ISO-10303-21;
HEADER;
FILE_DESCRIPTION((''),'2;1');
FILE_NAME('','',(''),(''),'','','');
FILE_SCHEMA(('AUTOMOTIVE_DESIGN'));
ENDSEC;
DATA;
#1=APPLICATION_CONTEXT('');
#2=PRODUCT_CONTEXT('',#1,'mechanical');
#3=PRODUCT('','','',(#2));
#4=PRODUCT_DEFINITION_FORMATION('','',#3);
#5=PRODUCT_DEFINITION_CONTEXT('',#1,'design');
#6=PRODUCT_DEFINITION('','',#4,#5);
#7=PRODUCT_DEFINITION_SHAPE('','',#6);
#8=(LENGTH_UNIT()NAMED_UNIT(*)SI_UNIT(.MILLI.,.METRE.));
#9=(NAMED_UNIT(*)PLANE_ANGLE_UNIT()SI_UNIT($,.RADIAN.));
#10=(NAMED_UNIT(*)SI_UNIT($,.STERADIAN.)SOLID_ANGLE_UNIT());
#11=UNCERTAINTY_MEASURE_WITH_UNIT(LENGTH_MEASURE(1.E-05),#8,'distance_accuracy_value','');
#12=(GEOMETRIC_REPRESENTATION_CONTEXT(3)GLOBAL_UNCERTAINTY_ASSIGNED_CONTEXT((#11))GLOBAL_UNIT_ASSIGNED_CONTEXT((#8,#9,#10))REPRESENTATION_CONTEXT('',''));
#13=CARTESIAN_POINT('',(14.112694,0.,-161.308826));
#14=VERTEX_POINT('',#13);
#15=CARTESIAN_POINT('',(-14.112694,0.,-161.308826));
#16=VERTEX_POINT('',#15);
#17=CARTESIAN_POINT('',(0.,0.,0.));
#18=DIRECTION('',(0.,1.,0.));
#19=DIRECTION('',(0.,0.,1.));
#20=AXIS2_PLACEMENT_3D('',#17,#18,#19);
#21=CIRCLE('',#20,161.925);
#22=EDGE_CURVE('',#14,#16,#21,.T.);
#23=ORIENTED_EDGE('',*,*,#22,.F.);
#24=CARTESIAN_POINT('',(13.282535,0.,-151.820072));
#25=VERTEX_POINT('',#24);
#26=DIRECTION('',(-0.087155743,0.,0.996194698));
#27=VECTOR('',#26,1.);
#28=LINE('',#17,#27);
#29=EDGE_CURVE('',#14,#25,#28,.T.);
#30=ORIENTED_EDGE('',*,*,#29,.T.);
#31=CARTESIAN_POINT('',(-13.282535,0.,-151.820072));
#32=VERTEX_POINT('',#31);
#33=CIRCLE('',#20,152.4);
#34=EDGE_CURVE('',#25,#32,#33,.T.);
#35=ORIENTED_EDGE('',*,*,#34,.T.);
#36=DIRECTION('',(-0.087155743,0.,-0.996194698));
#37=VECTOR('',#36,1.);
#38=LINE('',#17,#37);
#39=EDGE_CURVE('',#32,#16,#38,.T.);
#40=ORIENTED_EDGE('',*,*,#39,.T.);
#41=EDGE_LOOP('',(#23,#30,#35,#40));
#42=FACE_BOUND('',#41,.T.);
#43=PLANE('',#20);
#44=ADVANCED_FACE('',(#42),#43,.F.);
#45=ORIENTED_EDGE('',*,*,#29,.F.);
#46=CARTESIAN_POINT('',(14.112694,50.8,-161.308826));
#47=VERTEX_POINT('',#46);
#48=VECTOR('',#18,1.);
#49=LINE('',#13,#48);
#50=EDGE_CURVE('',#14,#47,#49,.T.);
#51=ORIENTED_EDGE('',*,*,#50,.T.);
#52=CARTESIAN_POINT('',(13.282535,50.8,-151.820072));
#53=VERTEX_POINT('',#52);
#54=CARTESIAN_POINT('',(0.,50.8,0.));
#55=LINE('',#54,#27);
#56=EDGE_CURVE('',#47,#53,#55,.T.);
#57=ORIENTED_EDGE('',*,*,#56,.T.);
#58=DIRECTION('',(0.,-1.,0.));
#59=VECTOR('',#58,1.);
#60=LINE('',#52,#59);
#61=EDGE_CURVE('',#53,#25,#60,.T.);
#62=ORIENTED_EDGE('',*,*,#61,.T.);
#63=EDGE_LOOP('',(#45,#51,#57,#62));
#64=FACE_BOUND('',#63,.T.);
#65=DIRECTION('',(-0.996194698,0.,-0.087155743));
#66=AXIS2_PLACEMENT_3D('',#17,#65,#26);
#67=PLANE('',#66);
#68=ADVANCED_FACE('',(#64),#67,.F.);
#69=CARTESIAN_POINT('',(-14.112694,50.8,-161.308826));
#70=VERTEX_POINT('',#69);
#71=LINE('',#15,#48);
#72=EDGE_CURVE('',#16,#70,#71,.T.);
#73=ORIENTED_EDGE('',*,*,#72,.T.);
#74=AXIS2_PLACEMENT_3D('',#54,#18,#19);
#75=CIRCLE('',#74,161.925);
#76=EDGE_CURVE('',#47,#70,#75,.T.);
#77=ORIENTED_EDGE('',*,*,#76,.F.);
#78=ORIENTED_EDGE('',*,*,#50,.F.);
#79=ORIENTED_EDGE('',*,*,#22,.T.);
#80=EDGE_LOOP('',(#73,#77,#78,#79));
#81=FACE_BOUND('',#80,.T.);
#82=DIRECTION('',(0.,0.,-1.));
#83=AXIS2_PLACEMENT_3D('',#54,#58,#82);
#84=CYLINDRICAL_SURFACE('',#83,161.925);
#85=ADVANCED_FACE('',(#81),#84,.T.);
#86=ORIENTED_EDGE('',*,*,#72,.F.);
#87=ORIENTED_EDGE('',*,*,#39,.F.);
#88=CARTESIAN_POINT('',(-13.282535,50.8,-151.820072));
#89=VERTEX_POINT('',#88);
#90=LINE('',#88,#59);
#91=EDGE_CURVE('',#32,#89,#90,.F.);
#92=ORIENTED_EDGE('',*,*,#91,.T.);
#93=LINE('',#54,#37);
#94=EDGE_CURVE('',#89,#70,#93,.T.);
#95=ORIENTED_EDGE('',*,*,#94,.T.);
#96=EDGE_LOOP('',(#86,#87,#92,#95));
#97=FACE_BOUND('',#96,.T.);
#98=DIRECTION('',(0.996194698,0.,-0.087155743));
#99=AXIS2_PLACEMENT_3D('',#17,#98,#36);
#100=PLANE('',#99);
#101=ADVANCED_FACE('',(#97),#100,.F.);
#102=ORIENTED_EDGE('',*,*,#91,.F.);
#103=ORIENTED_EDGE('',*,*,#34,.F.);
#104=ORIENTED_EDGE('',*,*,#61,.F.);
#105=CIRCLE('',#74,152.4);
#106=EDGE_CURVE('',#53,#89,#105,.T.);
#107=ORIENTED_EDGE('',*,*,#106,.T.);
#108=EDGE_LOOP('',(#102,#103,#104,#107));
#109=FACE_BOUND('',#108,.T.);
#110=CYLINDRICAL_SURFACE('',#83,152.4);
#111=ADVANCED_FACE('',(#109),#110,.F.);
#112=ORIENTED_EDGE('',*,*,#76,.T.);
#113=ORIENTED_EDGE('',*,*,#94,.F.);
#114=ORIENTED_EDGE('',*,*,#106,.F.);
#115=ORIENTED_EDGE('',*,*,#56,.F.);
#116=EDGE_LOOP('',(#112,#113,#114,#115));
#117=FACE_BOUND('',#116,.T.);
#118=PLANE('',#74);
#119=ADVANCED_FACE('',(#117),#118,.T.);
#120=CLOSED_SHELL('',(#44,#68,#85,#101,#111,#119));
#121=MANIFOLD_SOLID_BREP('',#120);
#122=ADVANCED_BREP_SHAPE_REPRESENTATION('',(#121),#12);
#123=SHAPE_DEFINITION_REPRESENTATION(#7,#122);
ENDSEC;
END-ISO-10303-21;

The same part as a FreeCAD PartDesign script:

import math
import FreeCAD as App
import Part
import Sketcher
from FreeCAD import Vector
Q = App.Units.Quantity

doc = App.newDocument("Part")
body = doc.addObject("PartDesign::Body", "Body")

# Sketch on XZ plane
sketch1 = body.newObject("Sketcher::SketchObject", "Sketch")
sketch1.AttachmentSupport = (doc.getObject("XZ_Plane"), [""])
sketch1.MapMode = "FlatFace"
sketch1.addGeometry([
    Part.Circle(Vector(0, 0, 0), Vector(0, 0, 1), 161.925),
    Part.Circle(Vector(0, 0, 0), Vector(0, 0, 1), 152.4),
], False)
sketch1.addConstraint([
    Sketcher.Constraint("Coincident", 0, 3, -1, 1),
    Sketcher.Constraint("Coincident", 1, 3, -1, 1),
    Sketcher.Constraint("Diameter", 1, Q("12 in")),
    Sketcher.Constraint("Diameter", 0, Q("12.75 in")),
])
pad1 = body.newObject("PartDesign::Pad", "Pad")
pad1.Profile = sketch1
pad1.Length = Q("2 in")
pad1.Reversed = True

# Sketch on XZ plane
sketch2 = body.newObject("Sketcher::SketchObject", "Sketch001")
sketch2.AttachmentSupport = (doc.getObject("XZ_Plane"), [""])
sketch2.MapMode = "FlatFace"
sketch2.AttachmentOffset = App.Placement(Vector(0, 0, -2 * 25.4), App.Rotation())
sketch2.addGeometry([
    Part.LineSegment(Vector(0, 0, 0), Vector(-14.112694, -161.308826, 0)),
    Part.ArcOfCircle(Part.Circle(Vector(0, 0, 0), Vector(0, 0, 1), 161.925), math.radians(-85), math.radians(265)),
    Part.LineSegment(Vector(14.112694, -161.308826, 0), Vector(0, 0, 0)),
], False)
sketch2.addConstraint([
    Sketcher.Constraint("Coincident", 0, 2, 1, 2),
    Sketcher.Constraint("Coincident", 1, 1, 2, 1),
    Sketcher.Constraint("Coincident", 2, 2, 0, 1),
    Sketcher.Constraint("Coincident", 1, 3, -1, 1),
    Sketcher.Constraint("Coincident", 2, 2, -1, 1),
    Sketcher.Constraint("Horizontal", 0, 2, 1, 1),
    Sketcher.Constraint("Angle", 0, Q("-95 deg")),
    Sketcher.Constraint("Radius", 1, Q("6.375 in")),
])
pocket1 = body.newObject("PartDesign::Pocket", "Pocket")
pocket1.Profile = sketch2
pocket1.Type = "ThroughAll"
pocket1.Reversed = True

doc.recompute()
